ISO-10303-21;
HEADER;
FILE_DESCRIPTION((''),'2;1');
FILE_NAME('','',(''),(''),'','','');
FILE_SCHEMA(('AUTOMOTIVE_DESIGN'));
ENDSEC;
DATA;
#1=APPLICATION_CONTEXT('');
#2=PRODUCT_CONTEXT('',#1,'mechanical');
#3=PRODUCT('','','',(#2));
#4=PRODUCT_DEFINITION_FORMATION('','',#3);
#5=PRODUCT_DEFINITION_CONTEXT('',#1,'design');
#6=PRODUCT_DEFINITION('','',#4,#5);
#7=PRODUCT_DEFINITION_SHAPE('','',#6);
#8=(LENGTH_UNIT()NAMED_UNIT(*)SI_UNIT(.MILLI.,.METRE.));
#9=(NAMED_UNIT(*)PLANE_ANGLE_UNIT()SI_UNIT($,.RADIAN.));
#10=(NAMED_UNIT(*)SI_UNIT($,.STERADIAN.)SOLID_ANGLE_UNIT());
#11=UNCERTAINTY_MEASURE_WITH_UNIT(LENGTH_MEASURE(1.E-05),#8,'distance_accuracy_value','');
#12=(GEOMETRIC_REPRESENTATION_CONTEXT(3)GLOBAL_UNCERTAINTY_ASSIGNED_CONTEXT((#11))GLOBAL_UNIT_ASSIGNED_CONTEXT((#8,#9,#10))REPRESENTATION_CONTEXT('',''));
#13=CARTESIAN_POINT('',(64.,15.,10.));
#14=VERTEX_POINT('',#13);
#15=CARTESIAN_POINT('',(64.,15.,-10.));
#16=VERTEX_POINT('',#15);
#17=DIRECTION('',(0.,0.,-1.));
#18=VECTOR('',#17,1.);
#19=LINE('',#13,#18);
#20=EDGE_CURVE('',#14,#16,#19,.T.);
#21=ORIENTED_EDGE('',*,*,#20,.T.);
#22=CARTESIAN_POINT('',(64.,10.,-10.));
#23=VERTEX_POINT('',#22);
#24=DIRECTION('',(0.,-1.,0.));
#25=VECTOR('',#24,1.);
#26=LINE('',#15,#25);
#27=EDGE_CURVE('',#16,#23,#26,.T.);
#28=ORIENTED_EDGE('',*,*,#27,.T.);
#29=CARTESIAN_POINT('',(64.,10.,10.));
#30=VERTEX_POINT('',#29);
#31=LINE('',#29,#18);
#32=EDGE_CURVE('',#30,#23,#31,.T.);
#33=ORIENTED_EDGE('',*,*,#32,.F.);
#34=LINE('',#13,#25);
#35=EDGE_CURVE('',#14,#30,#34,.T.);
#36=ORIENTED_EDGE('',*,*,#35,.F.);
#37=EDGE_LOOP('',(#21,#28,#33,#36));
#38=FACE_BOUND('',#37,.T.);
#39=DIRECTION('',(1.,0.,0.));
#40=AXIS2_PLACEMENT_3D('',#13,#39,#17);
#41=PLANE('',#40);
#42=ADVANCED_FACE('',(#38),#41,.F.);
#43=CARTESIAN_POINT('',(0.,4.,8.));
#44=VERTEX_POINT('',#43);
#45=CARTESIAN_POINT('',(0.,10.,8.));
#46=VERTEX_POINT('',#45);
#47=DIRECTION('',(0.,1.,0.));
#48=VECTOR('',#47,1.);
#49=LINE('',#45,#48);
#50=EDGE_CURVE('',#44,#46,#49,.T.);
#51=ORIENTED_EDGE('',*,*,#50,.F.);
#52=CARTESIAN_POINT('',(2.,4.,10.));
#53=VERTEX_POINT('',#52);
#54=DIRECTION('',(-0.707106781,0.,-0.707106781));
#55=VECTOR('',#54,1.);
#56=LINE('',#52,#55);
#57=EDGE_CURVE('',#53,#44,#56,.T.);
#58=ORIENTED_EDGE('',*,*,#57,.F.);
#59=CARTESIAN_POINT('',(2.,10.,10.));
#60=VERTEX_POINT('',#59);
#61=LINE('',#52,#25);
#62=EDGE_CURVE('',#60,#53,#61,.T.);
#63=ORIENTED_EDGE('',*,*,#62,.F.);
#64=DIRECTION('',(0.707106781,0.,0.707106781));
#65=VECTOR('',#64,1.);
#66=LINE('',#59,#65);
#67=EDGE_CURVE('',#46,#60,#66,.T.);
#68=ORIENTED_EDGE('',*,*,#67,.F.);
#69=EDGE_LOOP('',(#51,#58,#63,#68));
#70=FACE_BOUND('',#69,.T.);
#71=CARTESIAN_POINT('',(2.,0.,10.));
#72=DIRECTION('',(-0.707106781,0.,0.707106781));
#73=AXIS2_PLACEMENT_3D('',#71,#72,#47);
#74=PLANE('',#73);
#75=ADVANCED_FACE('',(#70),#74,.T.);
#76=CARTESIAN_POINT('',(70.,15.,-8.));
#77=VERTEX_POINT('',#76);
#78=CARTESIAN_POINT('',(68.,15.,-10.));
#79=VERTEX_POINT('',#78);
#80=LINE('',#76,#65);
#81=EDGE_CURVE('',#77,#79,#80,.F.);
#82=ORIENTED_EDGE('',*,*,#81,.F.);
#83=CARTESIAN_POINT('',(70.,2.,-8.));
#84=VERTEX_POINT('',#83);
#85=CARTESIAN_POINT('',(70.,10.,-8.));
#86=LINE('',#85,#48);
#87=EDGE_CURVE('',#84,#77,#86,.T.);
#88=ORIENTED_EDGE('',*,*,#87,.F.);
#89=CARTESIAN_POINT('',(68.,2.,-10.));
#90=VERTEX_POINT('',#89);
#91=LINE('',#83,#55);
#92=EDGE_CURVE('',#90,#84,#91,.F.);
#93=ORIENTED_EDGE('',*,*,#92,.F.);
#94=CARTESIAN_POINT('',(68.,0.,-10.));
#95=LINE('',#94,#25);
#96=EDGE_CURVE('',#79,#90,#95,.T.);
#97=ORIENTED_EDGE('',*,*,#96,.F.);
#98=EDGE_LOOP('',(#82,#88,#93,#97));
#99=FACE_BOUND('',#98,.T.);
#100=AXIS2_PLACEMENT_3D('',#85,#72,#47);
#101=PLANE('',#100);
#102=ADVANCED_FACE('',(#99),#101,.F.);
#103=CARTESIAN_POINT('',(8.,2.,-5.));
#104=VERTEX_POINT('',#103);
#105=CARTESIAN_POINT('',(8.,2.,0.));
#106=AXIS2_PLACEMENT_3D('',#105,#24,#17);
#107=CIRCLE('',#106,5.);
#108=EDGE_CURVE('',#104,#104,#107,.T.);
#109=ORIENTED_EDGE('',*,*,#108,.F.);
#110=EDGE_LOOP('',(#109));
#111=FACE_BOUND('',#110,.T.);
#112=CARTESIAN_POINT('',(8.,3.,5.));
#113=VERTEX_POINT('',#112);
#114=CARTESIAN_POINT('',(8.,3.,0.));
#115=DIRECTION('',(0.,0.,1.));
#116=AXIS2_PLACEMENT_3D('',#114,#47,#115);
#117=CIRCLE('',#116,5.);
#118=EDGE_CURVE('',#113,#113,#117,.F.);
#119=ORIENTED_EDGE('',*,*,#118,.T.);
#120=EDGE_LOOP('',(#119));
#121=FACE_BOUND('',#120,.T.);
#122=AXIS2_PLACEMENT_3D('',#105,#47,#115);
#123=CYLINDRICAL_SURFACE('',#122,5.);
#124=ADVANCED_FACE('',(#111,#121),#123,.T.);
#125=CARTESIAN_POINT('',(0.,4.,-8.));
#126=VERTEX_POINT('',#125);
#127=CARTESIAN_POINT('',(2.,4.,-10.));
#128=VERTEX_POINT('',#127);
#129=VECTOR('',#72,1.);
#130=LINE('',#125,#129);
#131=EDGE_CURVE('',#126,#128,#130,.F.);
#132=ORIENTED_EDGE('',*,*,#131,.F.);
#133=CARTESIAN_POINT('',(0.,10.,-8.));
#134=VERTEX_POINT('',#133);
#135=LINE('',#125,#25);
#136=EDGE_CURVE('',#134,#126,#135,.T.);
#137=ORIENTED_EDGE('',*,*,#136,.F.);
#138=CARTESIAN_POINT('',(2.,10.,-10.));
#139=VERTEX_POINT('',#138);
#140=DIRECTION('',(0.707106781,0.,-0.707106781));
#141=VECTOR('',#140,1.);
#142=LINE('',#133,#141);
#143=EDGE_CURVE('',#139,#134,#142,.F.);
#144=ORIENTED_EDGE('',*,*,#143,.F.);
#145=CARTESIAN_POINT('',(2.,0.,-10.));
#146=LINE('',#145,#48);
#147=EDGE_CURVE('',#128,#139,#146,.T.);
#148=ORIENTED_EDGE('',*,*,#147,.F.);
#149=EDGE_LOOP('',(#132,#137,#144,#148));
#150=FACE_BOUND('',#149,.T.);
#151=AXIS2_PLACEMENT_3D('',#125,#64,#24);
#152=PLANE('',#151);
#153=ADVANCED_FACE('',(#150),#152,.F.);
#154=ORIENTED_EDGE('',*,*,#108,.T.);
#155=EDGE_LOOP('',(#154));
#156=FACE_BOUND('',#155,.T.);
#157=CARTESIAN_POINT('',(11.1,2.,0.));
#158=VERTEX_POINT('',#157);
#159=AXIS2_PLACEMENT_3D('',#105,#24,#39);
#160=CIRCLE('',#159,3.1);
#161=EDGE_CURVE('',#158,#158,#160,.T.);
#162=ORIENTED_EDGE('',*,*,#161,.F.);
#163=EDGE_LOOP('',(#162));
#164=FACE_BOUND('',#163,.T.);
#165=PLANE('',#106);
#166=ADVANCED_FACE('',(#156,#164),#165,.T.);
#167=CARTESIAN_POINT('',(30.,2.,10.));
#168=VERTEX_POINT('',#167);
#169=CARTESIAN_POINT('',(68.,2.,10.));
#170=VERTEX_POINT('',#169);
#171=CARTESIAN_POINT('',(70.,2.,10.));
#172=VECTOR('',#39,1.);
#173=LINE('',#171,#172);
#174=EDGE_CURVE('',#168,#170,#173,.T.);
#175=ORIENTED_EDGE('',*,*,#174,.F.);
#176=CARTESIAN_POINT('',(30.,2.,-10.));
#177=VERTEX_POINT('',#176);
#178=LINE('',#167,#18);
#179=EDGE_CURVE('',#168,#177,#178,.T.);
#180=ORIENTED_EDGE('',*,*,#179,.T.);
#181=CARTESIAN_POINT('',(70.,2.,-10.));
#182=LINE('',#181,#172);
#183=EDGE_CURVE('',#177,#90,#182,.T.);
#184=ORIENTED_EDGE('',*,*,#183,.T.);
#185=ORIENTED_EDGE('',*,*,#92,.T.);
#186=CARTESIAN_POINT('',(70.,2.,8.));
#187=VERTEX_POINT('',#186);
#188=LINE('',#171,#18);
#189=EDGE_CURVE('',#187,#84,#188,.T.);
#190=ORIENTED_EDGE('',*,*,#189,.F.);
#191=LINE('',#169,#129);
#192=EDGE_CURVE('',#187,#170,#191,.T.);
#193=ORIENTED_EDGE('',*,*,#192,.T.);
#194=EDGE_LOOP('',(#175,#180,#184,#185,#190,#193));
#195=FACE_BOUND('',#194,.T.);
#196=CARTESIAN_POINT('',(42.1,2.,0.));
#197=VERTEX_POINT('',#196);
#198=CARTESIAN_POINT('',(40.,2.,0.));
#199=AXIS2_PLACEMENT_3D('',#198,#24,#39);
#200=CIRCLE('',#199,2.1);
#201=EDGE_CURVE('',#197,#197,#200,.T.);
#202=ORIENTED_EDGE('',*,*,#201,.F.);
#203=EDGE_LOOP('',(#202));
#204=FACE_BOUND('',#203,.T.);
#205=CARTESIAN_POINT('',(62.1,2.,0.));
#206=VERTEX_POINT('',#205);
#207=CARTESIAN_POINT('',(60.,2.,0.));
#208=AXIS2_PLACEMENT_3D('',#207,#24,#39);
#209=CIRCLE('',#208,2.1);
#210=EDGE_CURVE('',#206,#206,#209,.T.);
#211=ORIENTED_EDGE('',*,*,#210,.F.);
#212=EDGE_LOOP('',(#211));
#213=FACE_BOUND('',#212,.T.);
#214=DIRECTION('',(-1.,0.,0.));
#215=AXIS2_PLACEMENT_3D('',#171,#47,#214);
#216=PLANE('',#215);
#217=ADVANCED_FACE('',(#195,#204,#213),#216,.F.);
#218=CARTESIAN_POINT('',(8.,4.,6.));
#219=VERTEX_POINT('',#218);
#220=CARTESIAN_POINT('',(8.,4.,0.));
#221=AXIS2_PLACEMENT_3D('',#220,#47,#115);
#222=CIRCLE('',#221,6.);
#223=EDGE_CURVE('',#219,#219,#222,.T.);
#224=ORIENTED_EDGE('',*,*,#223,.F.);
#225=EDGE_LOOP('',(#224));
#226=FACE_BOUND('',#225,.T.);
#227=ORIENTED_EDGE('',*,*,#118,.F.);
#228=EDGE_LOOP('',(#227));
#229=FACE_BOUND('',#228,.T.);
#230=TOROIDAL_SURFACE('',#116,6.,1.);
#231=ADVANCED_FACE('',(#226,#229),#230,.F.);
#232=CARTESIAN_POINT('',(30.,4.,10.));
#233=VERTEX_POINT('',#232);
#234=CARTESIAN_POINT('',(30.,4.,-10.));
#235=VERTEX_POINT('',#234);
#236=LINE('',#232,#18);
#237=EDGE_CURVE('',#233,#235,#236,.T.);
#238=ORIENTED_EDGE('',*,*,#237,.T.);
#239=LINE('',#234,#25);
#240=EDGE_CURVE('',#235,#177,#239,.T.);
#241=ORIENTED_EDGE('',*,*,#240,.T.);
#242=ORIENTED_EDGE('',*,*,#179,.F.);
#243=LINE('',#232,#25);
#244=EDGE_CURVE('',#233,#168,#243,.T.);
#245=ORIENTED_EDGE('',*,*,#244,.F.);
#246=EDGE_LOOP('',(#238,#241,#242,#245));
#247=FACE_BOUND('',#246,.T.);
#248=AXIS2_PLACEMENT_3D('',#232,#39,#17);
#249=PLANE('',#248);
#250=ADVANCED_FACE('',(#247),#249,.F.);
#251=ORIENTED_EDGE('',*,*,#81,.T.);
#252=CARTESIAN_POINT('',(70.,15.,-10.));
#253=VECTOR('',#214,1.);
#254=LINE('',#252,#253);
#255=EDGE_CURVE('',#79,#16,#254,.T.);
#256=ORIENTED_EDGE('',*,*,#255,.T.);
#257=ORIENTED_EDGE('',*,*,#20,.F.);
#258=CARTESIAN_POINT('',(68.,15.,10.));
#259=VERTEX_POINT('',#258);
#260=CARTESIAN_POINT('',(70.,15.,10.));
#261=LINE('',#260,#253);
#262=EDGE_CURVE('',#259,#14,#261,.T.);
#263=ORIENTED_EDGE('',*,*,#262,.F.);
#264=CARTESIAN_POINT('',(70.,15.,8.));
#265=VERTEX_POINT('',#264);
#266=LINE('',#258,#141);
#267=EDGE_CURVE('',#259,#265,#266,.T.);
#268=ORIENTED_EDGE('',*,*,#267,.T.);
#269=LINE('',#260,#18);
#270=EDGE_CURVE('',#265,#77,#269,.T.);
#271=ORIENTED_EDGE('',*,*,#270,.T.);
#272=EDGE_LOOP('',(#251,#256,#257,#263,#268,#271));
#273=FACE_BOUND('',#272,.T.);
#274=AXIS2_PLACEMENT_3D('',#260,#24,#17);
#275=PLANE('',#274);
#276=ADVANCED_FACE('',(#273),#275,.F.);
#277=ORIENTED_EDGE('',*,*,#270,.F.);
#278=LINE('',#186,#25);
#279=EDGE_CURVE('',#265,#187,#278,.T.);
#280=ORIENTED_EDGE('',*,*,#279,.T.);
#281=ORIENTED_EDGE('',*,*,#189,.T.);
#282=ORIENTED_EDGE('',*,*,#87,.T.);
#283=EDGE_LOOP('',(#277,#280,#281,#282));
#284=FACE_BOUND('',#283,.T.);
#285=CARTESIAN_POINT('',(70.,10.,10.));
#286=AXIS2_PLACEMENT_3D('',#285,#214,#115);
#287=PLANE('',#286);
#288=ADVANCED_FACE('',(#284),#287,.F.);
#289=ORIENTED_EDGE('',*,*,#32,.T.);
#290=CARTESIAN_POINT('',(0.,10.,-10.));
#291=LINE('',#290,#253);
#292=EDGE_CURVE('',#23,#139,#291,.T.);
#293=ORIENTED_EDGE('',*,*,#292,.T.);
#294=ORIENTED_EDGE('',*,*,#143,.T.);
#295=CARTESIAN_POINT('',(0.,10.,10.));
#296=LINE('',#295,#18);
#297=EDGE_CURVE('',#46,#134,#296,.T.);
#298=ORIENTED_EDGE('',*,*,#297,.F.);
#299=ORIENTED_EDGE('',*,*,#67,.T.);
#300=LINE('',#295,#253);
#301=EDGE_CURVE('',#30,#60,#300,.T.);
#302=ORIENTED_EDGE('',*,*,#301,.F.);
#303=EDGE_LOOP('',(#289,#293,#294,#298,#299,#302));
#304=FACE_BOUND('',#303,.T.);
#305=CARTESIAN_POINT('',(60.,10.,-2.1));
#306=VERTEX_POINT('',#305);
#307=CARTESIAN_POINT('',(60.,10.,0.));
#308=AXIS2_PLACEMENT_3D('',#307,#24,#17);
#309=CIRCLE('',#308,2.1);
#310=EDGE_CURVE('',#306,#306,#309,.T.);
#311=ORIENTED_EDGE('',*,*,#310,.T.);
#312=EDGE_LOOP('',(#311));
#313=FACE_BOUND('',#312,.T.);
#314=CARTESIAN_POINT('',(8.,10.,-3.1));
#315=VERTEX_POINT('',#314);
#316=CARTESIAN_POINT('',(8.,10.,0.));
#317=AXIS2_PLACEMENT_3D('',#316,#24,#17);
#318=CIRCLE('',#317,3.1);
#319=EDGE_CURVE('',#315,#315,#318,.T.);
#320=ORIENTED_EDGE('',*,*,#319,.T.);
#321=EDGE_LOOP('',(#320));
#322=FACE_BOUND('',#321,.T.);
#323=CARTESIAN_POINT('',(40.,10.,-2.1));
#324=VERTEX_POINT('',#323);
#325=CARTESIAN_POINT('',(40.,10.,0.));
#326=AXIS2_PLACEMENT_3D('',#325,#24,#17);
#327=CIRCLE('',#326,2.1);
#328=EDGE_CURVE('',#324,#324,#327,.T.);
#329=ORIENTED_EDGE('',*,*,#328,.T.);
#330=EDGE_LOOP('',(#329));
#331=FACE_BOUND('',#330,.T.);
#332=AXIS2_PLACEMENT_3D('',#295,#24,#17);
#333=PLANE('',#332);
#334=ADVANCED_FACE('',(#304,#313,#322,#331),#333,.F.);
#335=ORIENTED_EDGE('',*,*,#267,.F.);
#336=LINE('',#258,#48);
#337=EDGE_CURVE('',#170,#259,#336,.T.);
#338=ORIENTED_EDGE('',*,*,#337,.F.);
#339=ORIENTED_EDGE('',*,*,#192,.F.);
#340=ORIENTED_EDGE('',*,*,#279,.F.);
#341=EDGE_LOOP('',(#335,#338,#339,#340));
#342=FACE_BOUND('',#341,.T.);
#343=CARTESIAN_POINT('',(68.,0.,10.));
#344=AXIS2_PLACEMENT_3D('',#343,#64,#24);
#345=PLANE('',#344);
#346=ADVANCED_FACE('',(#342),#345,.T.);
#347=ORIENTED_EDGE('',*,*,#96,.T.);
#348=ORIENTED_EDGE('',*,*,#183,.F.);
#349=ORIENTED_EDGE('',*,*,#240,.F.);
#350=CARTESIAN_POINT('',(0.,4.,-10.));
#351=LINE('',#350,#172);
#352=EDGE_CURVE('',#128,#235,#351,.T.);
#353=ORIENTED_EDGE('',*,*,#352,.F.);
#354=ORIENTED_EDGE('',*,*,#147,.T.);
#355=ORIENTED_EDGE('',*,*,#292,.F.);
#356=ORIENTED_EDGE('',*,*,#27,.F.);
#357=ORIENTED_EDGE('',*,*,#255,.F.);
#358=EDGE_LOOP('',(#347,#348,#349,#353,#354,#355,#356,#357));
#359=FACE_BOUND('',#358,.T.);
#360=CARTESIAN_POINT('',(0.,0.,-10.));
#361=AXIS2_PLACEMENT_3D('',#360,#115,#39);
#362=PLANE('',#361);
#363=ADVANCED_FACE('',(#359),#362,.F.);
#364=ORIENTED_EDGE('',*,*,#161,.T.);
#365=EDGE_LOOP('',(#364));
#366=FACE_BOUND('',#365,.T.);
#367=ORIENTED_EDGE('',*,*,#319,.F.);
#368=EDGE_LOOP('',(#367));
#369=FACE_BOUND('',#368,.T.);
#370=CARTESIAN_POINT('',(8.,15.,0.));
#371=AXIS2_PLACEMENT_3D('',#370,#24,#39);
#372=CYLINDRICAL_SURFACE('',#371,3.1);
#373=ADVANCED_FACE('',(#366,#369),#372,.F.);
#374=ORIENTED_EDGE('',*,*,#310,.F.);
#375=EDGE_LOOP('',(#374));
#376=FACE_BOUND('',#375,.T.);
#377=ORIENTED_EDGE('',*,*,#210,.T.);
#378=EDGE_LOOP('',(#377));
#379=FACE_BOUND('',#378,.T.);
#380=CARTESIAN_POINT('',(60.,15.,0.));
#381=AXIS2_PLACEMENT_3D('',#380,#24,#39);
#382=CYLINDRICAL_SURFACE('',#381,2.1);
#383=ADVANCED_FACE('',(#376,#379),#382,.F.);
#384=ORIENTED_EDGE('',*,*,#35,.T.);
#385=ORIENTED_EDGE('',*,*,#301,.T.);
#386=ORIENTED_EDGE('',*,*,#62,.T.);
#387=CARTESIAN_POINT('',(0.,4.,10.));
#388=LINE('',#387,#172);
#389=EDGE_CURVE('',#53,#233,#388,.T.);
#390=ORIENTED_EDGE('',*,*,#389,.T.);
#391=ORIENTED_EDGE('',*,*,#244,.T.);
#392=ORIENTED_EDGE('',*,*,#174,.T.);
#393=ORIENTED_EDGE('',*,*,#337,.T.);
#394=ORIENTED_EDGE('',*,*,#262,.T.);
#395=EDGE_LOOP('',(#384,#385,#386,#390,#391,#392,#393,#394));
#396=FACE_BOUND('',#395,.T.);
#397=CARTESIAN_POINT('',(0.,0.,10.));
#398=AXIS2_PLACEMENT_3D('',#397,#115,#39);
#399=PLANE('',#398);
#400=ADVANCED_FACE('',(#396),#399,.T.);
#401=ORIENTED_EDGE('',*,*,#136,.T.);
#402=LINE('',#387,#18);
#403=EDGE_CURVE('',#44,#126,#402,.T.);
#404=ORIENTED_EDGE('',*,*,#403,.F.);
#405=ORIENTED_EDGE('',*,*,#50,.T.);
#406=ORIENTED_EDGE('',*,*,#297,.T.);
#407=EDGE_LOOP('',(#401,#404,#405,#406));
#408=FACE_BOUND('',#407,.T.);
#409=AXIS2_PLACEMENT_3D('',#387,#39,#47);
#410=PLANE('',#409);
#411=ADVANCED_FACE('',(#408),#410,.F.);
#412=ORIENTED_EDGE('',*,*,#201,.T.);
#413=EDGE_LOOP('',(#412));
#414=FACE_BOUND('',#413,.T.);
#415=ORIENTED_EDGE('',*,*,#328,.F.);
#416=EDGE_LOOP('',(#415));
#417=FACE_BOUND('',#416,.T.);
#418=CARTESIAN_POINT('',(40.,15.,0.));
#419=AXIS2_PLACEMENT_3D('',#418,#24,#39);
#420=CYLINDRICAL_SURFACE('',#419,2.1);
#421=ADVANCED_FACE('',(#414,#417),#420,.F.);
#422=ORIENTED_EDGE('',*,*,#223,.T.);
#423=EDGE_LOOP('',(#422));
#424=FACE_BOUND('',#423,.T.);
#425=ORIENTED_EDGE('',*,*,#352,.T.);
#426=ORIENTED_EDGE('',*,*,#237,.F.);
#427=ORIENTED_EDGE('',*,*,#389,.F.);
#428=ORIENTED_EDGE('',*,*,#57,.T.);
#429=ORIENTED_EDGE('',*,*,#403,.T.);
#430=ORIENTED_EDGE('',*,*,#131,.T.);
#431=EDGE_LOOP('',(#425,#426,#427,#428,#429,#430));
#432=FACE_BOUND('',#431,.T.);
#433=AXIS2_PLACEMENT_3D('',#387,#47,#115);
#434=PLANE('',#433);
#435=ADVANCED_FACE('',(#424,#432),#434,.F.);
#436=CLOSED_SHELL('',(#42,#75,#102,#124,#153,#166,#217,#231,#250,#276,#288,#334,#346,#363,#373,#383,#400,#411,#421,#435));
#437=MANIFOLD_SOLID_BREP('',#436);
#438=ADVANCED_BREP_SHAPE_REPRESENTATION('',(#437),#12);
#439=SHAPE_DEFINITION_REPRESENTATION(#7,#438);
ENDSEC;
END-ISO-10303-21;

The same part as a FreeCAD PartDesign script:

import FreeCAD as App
import Part
import Sketcher
from FreeCAD import Vector


def edges_at(feature, points):
    """Names of the edges that pass closest to the given points."""
    edges = feature.Shape.Edges
    near = lambda p: min(range(len(edges)), key=lambda i: edges[i].distToShape(Part.Vertex(*p))[0])
    return sorted({f"Edge{near(p) + 1}" for p in points})

doc = App.newDocument("Part")
body = doc.addObject("PartDesign::Body", "Body")

sketch1 = doc.addObject("Sketcher::SketchObject", "Sketch")
body.addObject(sketch1)
sketch1.AttachmentSupport = (doc.XY_Plane, [""])
sketch1.MapMode = "FlatFace"
sketch1.addGeometry(Part.LineSegment(Vector(0, 10, 0), Vector(0, 4, 0)), False)
sketch1.addGeometry(Part.LineSegment(Vector(0, 4, 0), Vector(30, 4, 0)), False)
sketch1.addGeometry(Part.LineSegment(Vector(30, 4, 0), Vector(30, 2, 0)), False)
sketch1.addGeometry(Part.LineSegment(Vector(30, 2, 0), Vector(70, 2, 0)), False)
sketch1.addGeometry(Part.LineSegment(Vector(70, 2, 0), Vector(70, 15, 0)), False)
sketch1.addGeometry(Part.LineSegment(Vector(70, 15, 0), Vector(64, 15, 0)), False)
sketch1.addGeometry(Part.LineSegment(Vector(64, 15, 0), Vector(64, 10, 0)), False)
sketch1.addGeometry(Part.LineSegment(Vector(64, 10, 0), Vector(0, 10, 0)), False)
sketch1.addConstraint(Sketcher.Constraint("Coincident", 0, 2, 1, 1))
sketch1.addConstraint(Sketcher.Constraint("Coincident", 1, 2, 2, 1))
sketch1.addConstraint(Sketcher.Constraint("Coincident", 2, 2, 3, 1))
sketch1.addConstraint(Sketcher.Constraint("Coincident", 3, 2, 4, 1))
sketch1.addConstraint(Sketcher.Constraint("Coincident", 4, 2, 5, 1))
sketch1.addConstraint(Sketcher.Constraint("Coincident", 5, 2, 6, 1))
sketch1.addConstraint(Sketcher.Constraint("Coincident", 6, 2, 7, 1))
sketch1.addConstraint(Sketcher.Constraint("Coincident", 7, 2, 0, 1))
sketch1.addConstraint(Sketcher.Constraint("Vertical", 0))
sketch1.addConstraint(Sketcher.Constraint("Horizontal", 1))
sketch1.addConstraint(Sketcher.Constraint("Vertical", 2))
sketch1.addConstraint(Sketcher.Constraint("Horizontal", 3))
sketch1.addConstraint(Sketcher.Constraint("Vertical", 4))
sketch1.addConstraint(Sketcher.Constraint("Horizontal", 5))
sketch1.addConstraint(Sketcher.Constraint("Vertical", 6))
sketch1.addConstraint(Sketcher.Constraint("Horizontal", 7))
sketch1.addConstraint(Sketcher.Constraint("PointOnObject", 0, 2, -2))
sketch1.addConstraint(Sketcher.Constraint("Equal", 5, 0))
sketch1.addConstraint(Sketcher.Constraint("DistanceX", 1, 1, 1, 2, 30.0))
sketch1.addConstraint(Sketcher.Constraint("DistanceX", 3, 1, 3, 2, 40.0))
sketch1.addConstraint(Sketcher.Constraint("DistanceX", 5, 2, 5, 1, 6.0))
sketch1.addConstraint(Sketcher.Constraint("DistanceY", 2, 2, 2, 1, 2.0))
sketch1.addConstraint(Sketcher.Constraint("DistanceY", 4, 1, 4, 2, 13.0))
sketch1.addConstraint(Sketcher.Constraint("DistanceY", -1, 1, 0, 2, 4.0))
pad1 = doc.addObject("PartDesign::Pad", "Pad")
body.addObject(pad1)
pad1.Profile = sketch1
pad1.Length = 20
pad1.Midplane = True

sketch2 = doc.addObject("Sketcher::SketchObject", "Sketch001")
body.addObject(sketch2)
sketch2.AttachmentSupport = (doc.XZ_Plane, [""])
sketch2.MapMode = "FlatFace"
sketch2.AttachmentOffset = App.Placement(Vector(0, 0, -4), App.Rotation())
sketch2.addGeometry(Part.Circle(Vector(8, 0, 0), Vector(0, 0, 1), 5), False)
sketch2.addConstraint(Sketcher.Constraint("PointOnObject", 0, 3, -1))
sketch2.addConstraint(Sketcher.Constraint("Diameter", 0, 10.0))
sketch2.addConstraint(Sketcher.Constraint("DistanceX", -1, 1, 0, 3, 8.0))
pad2 = doc.addObject("PartDesign::Pad", "Pad001")
body.addObject(pad2)
pad2.Profile = sketch2
pad2.Length = 2
doc.recompute()

chamfer = doc.addObject("PartDesign::Chamfer", "Chamfer")
body.addObject(chamfer)
chamfer.Base = (pad2, edges_at(pad2, [(0, 7, -10), (0, 7, 10)]))
chamfer.Size = 2
doc.recompute()

chamfer2 = doc.addObject("PartDesign::Chamfer", "Chamfer001")
body.addObject(chamfer2)
chamfer2.Base = (chamfer, edges_at(chamfer, [(70, 8.5, 10), (70, 8.5, -10)]))
chamfer2.Size = 2

sketch3 = doc.addObject("Sketcher::SketchObject", "Sketch002")
body.addObject(sketch3)
sketch3.AttachmentSupport = (doc.XZ_Plane, [""])
sketch3.MapMode = "FlatFace"
sketch3.AttachmentOffset = App.Placement(Vector(0, 0, -2), App.Rotation())
sketch3.addGeometry(Part.Circle(Vector(40, 0, 0), Vector(0, 0, 1), 2.1), False)
sketch3.addGeometry(Part.Circle(Vector(60, 0, 0), Vector(0, 0, 1), 2.1), False)
sketch3.addGeometry(Part.Circle(Vector(8, 0, 0), Vector(0, 0, 1), 3.1), False)
sketch3.addConstraint(Sketcher.Constraint("Equal", 0, 1))
sketch3.addConstraint(Sketcher.Constraint("PointOnObject", 0, 3, -1))
sketch3.addConstraint(Sketcher.Constraint("PointOnObject", 1, 3, -1))
sketch3.addConstraint(Sketcher.Constraint("PointOnObject", 2, 3, -1))
sketch3.addConstraint(Sketcher.Constraint("Diameter", 0, 4.2))
sketch3.addConstraint(Sketcher.Constraint("Diameter", 2, 6.2))
sketch3.addConstraint(Sketcher.Constraint("DistanceX", -1, 1, 0, 3, 40.0))
sketch3.addConstraint(Sketcher.Constraint("DistanceX", -1, 1, 1, 3, 60.0))
sketch3.addConstraint(Sketcher.Constraint("DistanceX", -1, 1, 2, 3, 8.0))
pocket1 = doc.addObject("PartDesign::Pocket", "Pocket")
body.addObject(pocket1)
pocket1.Profile = sketch3
pocket1.Type = "ThroughAll"
doc.recompute()

fillet = doc.addObject("PartDesign::Fillet", "Fillet")
body.addObject(fillet)
fillet.Base = (pocket1, edges_at(pocket1, [(8, 4, -5)]))
fillet.Radius = 1

doc.recompute()
